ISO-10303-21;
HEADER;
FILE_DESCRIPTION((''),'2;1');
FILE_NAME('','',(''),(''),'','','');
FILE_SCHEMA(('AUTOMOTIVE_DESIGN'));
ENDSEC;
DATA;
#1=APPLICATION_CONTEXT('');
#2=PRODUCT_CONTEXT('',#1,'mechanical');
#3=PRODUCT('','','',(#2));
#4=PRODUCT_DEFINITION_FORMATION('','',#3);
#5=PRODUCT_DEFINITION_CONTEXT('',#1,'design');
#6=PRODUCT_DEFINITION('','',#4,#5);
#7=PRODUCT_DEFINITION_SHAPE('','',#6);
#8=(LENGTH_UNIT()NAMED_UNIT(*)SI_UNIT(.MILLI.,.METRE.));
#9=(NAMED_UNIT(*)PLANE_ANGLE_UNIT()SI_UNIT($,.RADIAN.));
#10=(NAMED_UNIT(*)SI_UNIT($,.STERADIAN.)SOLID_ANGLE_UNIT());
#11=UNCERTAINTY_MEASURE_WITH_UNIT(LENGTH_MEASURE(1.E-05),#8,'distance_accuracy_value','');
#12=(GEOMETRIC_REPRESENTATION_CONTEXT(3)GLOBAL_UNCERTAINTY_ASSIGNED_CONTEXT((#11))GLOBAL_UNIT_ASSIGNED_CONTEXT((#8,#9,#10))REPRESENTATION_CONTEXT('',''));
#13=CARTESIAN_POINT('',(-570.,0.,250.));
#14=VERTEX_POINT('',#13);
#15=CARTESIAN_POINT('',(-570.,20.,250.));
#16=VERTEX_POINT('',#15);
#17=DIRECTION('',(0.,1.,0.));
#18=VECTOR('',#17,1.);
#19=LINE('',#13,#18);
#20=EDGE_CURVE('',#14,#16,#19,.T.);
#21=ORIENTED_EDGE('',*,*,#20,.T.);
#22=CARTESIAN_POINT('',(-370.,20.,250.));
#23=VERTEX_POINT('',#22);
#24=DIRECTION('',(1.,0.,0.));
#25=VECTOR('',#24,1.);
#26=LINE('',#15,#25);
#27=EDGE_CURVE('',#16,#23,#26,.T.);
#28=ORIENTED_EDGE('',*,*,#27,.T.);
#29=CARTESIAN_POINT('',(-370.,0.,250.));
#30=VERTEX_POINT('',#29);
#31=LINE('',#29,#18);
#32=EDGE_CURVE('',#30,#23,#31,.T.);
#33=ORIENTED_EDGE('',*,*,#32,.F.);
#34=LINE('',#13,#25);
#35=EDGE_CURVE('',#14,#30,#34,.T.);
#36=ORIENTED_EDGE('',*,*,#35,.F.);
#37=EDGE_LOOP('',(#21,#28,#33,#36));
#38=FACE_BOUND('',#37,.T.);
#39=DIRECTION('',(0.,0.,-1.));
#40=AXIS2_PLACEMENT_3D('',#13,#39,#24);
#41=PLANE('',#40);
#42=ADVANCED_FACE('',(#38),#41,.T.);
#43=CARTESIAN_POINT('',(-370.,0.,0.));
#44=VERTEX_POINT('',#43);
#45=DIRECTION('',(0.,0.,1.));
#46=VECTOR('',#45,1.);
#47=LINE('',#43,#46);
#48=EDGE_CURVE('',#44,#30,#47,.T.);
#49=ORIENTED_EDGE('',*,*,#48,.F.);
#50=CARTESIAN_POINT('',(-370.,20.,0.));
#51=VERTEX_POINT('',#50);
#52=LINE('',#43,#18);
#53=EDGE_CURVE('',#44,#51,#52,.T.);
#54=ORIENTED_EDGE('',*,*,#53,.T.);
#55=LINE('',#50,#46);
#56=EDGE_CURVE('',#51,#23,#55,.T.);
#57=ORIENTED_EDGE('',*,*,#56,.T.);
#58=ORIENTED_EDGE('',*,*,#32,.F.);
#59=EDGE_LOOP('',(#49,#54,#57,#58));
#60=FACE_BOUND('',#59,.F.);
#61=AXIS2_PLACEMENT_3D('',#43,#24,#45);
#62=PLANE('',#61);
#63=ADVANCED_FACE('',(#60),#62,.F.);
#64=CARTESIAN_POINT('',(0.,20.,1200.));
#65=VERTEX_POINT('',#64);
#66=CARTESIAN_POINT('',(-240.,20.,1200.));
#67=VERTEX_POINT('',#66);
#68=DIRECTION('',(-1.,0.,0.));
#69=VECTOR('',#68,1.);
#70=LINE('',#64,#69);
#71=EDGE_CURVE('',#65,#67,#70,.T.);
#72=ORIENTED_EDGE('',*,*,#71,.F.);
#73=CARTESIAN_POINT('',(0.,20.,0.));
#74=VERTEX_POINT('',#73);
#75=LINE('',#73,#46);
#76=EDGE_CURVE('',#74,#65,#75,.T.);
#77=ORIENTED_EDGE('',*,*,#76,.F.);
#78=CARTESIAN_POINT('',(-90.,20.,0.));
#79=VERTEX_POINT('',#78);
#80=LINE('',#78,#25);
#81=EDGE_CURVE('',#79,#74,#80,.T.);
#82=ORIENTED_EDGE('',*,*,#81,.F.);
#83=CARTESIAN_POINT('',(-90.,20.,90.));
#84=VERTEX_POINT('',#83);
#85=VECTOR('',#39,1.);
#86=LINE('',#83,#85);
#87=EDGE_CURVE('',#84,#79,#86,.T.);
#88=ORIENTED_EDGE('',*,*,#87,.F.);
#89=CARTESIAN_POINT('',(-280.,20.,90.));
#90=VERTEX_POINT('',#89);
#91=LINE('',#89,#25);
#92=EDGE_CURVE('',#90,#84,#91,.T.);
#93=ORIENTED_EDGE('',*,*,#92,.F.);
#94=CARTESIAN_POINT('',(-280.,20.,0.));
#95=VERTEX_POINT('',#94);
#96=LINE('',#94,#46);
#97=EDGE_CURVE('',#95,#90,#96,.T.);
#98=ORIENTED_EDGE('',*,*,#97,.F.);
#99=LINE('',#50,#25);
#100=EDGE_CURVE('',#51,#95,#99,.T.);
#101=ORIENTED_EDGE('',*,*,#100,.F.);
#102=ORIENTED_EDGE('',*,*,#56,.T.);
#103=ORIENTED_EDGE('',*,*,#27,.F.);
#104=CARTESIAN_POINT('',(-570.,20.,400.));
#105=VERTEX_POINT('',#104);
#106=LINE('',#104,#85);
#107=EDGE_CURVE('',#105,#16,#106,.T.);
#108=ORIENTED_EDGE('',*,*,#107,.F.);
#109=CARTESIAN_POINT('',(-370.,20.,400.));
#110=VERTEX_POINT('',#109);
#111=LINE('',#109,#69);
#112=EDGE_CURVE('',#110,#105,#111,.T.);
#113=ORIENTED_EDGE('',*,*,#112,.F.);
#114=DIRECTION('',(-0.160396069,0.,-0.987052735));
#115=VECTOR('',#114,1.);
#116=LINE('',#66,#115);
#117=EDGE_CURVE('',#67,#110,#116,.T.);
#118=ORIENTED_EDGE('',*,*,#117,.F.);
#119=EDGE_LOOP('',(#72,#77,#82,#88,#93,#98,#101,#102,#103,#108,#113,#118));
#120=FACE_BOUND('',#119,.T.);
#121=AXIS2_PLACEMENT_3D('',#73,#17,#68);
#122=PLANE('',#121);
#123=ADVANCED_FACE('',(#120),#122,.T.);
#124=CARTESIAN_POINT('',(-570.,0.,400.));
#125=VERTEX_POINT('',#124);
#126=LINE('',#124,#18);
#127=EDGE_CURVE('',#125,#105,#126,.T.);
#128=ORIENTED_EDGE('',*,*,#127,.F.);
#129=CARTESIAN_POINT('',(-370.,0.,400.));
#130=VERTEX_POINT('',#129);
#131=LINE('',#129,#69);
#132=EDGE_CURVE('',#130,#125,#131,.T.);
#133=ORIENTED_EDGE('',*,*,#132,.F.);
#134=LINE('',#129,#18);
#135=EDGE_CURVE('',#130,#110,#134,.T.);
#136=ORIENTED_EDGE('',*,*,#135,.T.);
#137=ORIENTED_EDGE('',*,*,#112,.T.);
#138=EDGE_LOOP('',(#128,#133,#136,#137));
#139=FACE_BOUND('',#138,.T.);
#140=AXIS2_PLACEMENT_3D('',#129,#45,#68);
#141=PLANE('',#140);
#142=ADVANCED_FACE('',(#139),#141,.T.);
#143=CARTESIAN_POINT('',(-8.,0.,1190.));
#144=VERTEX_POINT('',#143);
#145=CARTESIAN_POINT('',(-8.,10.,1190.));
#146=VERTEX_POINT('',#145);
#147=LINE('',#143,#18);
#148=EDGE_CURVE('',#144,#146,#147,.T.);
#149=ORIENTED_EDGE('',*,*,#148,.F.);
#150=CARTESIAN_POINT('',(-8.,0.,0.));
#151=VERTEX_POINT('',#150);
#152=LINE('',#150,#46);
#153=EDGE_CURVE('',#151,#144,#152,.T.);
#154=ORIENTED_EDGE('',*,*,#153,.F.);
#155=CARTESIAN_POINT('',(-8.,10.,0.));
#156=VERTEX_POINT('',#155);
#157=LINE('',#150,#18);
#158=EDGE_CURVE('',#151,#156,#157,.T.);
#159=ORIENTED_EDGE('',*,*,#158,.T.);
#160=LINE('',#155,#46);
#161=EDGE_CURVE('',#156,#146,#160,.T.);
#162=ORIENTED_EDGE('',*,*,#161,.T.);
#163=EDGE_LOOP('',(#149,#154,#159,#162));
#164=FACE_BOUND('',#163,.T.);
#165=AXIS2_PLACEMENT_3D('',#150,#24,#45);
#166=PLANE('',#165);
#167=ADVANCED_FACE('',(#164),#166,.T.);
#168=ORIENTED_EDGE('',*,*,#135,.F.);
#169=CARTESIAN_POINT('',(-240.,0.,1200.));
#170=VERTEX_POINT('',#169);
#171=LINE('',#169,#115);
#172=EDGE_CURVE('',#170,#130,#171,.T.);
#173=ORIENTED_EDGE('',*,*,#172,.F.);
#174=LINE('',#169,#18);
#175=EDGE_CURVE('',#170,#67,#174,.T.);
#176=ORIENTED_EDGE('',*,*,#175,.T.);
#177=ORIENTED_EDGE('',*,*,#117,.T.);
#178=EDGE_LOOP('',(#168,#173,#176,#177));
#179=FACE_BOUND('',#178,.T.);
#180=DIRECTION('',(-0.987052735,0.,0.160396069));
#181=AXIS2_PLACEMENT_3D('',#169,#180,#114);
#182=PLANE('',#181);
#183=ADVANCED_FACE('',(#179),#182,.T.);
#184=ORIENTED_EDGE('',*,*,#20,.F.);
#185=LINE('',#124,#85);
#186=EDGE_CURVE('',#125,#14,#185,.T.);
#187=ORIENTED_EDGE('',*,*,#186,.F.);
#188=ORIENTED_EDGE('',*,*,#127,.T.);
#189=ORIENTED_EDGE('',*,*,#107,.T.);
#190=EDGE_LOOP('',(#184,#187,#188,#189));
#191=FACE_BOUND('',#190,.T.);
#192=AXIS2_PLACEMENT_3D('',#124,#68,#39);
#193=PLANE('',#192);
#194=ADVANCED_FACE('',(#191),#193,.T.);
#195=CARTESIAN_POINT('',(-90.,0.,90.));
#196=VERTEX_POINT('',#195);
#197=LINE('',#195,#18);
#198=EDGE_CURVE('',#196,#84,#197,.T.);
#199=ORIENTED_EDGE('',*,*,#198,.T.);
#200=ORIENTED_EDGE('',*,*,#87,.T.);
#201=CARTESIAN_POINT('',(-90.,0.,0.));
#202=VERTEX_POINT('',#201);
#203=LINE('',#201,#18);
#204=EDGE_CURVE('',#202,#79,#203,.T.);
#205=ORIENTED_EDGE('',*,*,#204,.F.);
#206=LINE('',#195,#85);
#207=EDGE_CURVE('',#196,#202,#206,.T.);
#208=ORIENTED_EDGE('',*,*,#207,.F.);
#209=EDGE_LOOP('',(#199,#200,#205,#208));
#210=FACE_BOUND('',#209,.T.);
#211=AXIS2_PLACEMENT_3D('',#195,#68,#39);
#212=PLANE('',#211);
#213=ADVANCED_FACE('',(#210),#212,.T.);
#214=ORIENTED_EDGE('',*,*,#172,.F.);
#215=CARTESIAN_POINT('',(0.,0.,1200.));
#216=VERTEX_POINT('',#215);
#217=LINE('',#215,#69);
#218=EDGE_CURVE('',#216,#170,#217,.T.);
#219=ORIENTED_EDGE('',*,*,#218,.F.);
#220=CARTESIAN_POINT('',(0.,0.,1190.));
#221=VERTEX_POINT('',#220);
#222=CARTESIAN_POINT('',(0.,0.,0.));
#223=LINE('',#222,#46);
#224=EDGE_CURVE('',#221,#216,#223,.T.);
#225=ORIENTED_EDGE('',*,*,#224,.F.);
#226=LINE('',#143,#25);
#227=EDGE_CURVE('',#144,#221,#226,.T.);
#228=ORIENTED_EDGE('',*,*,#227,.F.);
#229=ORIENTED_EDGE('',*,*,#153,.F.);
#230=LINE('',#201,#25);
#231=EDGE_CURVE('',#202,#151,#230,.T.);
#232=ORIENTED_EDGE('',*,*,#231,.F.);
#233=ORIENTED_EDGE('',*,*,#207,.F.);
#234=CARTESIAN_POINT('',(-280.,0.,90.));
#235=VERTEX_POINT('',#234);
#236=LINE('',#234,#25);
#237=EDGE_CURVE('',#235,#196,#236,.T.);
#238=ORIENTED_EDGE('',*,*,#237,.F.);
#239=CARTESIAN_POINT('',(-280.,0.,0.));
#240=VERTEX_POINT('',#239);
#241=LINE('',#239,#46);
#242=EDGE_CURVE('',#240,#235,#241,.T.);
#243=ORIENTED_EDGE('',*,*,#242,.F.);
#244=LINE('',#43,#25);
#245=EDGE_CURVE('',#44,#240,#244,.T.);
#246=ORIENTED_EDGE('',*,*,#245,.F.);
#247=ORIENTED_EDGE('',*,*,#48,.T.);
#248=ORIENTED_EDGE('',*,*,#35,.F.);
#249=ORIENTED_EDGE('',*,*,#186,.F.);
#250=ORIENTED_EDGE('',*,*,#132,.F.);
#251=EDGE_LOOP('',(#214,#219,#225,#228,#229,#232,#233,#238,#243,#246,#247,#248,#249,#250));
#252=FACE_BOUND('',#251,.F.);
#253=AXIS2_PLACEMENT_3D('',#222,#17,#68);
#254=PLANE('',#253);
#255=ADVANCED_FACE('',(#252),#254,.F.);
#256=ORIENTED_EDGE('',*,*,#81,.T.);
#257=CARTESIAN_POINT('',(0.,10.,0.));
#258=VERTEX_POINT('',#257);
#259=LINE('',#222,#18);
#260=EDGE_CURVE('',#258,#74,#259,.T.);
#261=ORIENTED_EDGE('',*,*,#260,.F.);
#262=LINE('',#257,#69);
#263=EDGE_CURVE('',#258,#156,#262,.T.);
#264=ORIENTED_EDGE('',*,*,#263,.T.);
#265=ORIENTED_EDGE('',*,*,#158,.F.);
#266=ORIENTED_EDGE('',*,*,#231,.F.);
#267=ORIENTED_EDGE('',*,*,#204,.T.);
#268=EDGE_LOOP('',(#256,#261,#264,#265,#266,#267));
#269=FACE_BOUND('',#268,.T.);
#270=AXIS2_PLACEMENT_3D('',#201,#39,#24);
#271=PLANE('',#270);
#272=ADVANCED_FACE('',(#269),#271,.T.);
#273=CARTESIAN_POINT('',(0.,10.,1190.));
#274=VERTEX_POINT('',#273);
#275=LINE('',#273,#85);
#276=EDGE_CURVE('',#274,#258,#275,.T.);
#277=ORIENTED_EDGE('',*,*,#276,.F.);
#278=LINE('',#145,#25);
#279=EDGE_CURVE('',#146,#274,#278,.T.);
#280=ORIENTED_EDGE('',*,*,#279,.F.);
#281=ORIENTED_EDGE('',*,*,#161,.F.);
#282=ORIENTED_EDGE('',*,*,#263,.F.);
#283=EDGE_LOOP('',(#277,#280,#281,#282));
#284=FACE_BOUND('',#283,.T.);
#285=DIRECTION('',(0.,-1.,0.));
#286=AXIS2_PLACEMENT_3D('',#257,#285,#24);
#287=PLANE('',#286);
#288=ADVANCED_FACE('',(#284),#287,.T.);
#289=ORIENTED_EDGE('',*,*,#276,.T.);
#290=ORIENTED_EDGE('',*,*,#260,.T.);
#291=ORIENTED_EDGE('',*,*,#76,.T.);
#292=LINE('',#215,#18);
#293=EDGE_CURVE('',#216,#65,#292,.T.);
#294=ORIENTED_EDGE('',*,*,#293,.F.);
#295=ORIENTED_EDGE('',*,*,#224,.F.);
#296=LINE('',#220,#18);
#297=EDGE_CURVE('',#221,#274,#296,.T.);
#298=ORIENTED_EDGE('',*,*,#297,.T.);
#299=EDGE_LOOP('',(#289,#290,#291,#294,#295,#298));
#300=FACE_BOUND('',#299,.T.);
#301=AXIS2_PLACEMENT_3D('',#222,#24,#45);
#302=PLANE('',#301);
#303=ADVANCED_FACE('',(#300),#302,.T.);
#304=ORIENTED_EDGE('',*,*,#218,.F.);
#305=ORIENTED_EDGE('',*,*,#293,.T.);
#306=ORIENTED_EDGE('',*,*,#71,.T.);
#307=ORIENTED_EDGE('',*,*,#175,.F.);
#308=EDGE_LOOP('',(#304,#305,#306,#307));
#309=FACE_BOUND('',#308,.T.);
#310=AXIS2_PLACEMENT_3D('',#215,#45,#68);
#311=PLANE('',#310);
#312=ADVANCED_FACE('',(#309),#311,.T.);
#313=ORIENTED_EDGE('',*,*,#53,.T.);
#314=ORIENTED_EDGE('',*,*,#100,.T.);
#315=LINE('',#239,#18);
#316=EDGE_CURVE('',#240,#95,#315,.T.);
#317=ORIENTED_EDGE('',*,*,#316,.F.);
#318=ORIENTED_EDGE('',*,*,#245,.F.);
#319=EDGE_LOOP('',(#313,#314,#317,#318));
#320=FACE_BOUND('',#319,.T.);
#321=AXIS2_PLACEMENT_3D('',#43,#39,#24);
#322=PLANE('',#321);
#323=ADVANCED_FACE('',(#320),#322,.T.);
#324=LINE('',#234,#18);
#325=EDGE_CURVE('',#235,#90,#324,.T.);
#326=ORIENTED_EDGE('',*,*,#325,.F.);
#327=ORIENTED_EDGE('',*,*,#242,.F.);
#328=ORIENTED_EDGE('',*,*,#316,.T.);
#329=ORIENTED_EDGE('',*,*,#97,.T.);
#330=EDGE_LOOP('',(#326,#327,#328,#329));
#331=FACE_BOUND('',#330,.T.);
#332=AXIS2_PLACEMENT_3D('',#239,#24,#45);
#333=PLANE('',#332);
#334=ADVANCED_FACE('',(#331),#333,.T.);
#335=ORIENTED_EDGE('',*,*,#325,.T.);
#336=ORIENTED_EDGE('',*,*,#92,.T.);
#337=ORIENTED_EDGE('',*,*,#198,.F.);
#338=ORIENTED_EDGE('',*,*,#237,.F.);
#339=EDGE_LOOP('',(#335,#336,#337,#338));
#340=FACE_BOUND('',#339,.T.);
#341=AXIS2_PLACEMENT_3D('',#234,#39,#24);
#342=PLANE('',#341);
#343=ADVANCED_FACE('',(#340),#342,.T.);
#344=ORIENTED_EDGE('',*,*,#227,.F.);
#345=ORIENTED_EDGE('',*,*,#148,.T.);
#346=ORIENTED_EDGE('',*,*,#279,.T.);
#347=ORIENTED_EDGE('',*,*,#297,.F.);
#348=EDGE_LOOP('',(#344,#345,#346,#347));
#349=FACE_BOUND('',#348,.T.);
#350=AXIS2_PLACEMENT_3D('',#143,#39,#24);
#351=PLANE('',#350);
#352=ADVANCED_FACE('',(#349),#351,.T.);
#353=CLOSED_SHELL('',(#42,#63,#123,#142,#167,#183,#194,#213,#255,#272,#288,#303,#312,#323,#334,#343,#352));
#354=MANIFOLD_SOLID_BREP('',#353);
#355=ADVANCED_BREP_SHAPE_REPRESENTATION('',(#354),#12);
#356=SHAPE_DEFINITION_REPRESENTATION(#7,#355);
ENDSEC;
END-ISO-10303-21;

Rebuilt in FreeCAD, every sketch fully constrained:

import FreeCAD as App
import Part
import Sketcher

V = App.Vector


def add_polygon(sketch, points):
    """Adds a closed chain of lines whose ends are joined by coincident constraints."""
    first, n = sketch.GeometryCount, len(points)
    for a, b in zip(points, points[1:] + points[:1]):
        sketch.addGeometry(Part.LineSegment(App.Vector(*a, 0), App.Vector(*b, 0)), False)
    for i in range(n):
        sketch.addConstraint(Sketcher.Constraint("Coincident", first + i, 2, first + (i + 1) % n, 1))

doc = App.newDocument("Part")
params = doc.addObject("Spreadsheet::Sheet", "Params")
for row, (alias, value) in enumerate([
    ("sketch1_width", "90 mm"),
    ("sketch1_width2", "190 mm"),
    ("sketch1_width3", "200 mm"),
    ("sketch1_width4", "240 mm"),
    ("sketch1_height", "1200 mm"),
    ("pad1_length", "20 mm"),
    ("sketch2_width", "8 mm"),
    ("sketch2_height", "1190 mm"),
    ("pocket1_length", "10 mm"),
], start=1):
    params.set(f"A{row}", alias)
    params.set(f"B{row}", "=" + value)
    params.setAlias(f"B{row}", alias)

body = doc.addObject("PartDesign::Body", "Body")

sketch1 = doc.addObject("Sketcher::SketchObject", "Sketch")
body.addObject(sketch1)
sketch1.AttachmentSupport = (doc.XZ_Plane, [""])
sketch1.MapMode = "FlatFace"
add_polygon(sketch1, [(0, 1200), (0, 0), (-90, 0), (-90, 90), (-280, 90), (-280, 0), (-370, 0), (-370, 250), (-570, 250), (-570, 400), (-370, 400), (-240, 1200)])
sketch1.addConstraint(Sketcher.Constraint("Vertical", 0))
sketch1.addConstraint(Sketcher.Constraint("Horizontal", 1))
sketch1.addConstraint(Sketcher.Constraint("Vertical", 2))
sketch1.addConstraint(Sketcher.Constraint("Horizontal", 3))
sketch1.addConstraint(Sketcher.Constraint("Vertical", 4))
sketch1.addConstraint(Sketcher.Constraint("Horizontal", 5))
sketch1.addConstraint(Sketcher.Constraint("Vertical", 6))
sketch1.addConstraint(Sketcher.Constraint("Horizontal", 7))
sketch1.addConstraint(Sketcher.Constraint("Vertical", 8))
sketch1.addConstraint(Sketcher.Constraint("Horizontal", 9))
sketch1.addConstraint(Sketcher.Constraint("Horizontal", 11))
sketch1.addConstraint(Sketcher.Constraint("Coincident", 0, 2, -1, 1))
sketch1.addConstraint(Sketcher.Constraint("PointOnObject", 4, 2, -1))
sketch1.addConstraint(Sketcher.Constraint("Vertical", 6, 2, 9, 2))
sketch1.addConstraint(Sketcher.Constraint("Equal", 1, 5))
sketch1.addConstraint(Sketcher.Constraint("Equal", 5, 2))
sketch1.addConstraint(Sketcher.Constraint("DistanceX", 1, 2, 1, 1, 90.0))
sketch1.addConstraint(Sketcher.Constraint("DistanceX", 3, 2, 3, 1, 190.0))
sketch1.addConstraint(Sketcher.Constraint("DistanceX", 7, 2, 7, 1, 200.0))
sketch1.addConstraint(Sketcher.Constraint("DistanceX", 11, 1, 11, 2, 240.0))
sketch1.addConstraint(Sketcher.Constraint("DistanceY", 0, 2, 0, 1, 1200.0))
sketch1.addConstraint(Sketcher.Constraint("DistanceY", 6, 1, 6, 2, 250.0))
sketch1.addConstraint(Sketcher.Constraint("DistanceY", 8, 1, 8, 2, 150.0))
sketch1.setExpression("Constraints[28]", "Params.sketch1_width")
sketch1.setExpression("Constraints[29]", "Params.sketch1_width2")
sketch1.setExpression("Constraints[30]", "Params.sketch1_width3")
sketch1.setExpression("Constraints[31]", "Params.sketch1_width4")
sketch1.setExpression("Constraints[32]", "Params.sketch1_height")
pad1 = doc.addObject("PartDesign::Pad", "Pad")
body.addObject(pad1)
pad1.Profile = sketch1
pad1.setExpression("Length", "Params.pad1_length")
pad1.Reversed = True

sketch2 = doc.addObject("Sketcher::SketchObject", "Sketch001")
body.addObject(sketch2)
sketch2.AttachmentSupport = (doc.XZ_Plane, [""])
sketch2.MapMode = "FlatFace"
add_polygon(sketch2, [(-8, 0), (0, 0), (0, 1190), (-8, 1190)])
sketch2.addConstraint(Sketcher.Constraint("Horizontal", 0))
sketch2.addConstraint(Sketcher.Constraint("Vertical", 1))
sketch2.addConstraint(Sketcher.Constraint("Horizontal", 2))
sketch2.addConstraint(Sketcher.Constraint("Vertical", 3))
sketch2.addConstraint(Sketcher.Constraint("Coincident", 0, 2, -1, 1))
sketch2.addConstraint(Sketcher.Constraint("DistanceX", 0, 1, 0, 2, 8.0))
sketch2.addConstraint(Sketcher.Constraint("DistanceY", 1, 1, 1, 2, 1190.0))
sketch2.setExpression("Constraints[9]", "Params.sketch2_width")
sketch2.setExpression("Constraints[10]", "Params.sketch2_height")
pocket1 = doc.addObject("PartDesign::Pocket", "Pocket")
body.addObject(pocket1)
pocket1.Profile = sketch2
pocket1.setExpression("Length", "Params.pocket1_length")

doc.recompute()
